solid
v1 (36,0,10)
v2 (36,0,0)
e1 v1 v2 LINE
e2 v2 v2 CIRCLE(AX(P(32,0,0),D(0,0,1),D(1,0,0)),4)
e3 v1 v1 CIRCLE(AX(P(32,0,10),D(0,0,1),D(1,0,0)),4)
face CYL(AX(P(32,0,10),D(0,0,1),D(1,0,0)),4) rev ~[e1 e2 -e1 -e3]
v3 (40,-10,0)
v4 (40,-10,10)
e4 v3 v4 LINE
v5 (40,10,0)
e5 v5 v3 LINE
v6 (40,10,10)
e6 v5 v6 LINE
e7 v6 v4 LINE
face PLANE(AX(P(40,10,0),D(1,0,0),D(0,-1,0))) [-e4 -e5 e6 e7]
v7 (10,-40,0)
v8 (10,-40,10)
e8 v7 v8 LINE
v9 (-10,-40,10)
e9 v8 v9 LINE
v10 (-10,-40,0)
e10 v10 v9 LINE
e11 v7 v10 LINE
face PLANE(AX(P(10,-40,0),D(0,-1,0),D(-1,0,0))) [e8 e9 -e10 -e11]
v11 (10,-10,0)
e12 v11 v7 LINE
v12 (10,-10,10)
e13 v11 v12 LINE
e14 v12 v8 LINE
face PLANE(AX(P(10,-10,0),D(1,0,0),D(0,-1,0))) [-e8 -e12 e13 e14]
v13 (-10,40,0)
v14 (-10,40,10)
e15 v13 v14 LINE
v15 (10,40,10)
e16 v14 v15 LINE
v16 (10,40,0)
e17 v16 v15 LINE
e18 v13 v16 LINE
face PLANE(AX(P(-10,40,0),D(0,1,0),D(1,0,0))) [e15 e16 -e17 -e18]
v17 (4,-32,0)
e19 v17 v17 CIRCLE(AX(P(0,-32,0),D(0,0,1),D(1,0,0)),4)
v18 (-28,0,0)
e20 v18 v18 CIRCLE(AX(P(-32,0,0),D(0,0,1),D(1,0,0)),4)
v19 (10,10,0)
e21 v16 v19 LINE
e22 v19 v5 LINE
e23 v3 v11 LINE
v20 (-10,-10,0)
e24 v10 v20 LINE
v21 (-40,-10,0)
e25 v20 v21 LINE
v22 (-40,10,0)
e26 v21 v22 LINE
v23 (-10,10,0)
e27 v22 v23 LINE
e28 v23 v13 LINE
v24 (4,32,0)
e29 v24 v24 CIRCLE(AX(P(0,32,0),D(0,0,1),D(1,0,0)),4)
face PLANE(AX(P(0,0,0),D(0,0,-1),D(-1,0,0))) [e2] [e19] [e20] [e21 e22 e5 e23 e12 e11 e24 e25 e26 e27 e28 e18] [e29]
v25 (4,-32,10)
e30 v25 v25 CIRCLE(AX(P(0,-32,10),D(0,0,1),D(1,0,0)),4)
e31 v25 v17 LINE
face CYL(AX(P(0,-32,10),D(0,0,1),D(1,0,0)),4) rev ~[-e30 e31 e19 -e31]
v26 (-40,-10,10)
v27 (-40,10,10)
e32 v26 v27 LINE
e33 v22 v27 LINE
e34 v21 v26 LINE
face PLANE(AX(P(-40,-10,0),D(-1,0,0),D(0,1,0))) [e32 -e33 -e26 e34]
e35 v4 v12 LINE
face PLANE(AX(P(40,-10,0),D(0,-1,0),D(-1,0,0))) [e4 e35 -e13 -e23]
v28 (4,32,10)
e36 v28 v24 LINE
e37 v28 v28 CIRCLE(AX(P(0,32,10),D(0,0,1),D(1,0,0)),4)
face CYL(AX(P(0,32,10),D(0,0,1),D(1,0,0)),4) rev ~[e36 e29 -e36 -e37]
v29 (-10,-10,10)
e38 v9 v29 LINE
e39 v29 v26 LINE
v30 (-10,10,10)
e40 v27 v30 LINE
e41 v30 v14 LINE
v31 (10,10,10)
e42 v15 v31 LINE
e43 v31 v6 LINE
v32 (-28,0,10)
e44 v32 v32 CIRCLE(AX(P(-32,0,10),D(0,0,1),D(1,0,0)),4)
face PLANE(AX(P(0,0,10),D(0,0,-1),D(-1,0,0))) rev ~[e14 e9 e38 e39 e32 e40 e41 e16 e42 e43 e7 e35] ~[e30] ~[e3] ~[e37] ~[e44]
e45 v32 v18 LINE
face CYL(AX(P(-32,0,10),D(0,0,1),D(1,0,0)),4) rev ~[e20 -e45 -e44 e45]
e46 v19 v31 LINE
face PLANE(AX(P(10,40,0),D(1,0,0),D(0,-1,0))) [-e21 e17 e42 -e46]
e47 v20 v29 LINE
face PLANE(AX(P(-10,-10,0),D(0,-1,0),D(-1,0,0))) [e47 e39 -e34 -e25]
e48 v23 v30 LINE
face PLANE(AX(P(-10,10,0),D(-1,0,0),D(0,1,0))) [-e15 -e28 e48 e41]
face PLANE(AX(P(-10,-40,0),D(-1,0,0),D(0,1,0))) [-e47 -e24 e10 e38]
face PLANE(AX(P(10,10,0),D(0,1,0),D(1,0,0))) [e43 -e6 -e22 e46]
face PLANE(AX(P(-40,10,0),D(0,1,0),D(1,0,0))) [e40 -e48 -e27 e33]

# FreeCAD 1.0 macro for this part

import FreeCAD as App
import Part
import Sketcher

V = App.Vector
Q = App.Units.Quantity


def add_polygon(sketch, points):
    """Adds a closed chain of lines whose ends are joined by coincident constraints."""
    first, n = sketch.GeometryCount, len(points)
    for a, b in zip(points, points[1:] + points[:1]):
        sketch.addGeometry(Part.LineSegment(App.Vector(*a, 0), App.Vector(*b, 0)), False)
    for i in range(n):
        sketch.addConstraint(Sketcher.Constraint("Coincident", first + i, 2, first + (i + 1) % n, 1))

doc = App.newDocument("Part")
body = doc.addObject("PartDesign::Body", "Body")

sketch1 = body.newObject("Sketcher::SketchObject", "Sketch")
sketch1.AttachmentSupport = (doc.getObject("XY_Plane"), [""])
sketch1.MapMode = "FlatFace"
add_polygon(sketch1, [(10, 40), (-10, 40), (-10, 10), (-40, 10), (-40, -10), (-10, -10), (-10, -40), (10, -40), (10, -10), (40, -10), (40, 10), (10, 10)])
sketch1.addConstraint([
    Sketcher.Constraint("Horizontal", 0),
    Sketcher.Constraint("Vertical", 1),
    Sketcher.Constraint("Horizontal", 2),
    Sketcher.Constraint("Vertical", 3),
    Sketcher.Constraint("Horizontal", 4),
    Sketcher.Constraint("Vertical", 5),
    Sketcher.Constraint("Horizontal", 6),
    Sketcher.Constraint("Vertical", 7),
    Sketcher.Constraint("Horizontal", 8),
    Sketcher.Constraint("Vertical", 9),
    Sketcher.Constraint("Horizontal", 10),
    Sketcher.Constraint("Vertical", 11),
    Sketcher.Constraint("Symmetric", 0, 2, 6, 2, -1, 1),
    Sketcher.Constraint("Symmetric", 2, 2, 8, 2, -1, 1),
    Sketcher.Constraint("Symmetric", 4, 2, 10, 2, -1, 1),
    Sketcher.Constraint("Symmetric", 4, 2, 7, 2, -2),
    Sketcher.Constraint("Equal", 10, 1),
    Sketcher.Constraint("Equal", 6, 3),
    Sketcher.Constraint("DistanceX", 0, 2, 0, 1, Q("20 mm")),
    Sketcher.Constraint("DistanceX", 2, 2, 2, 1, Q("30 mm")),
])
pad1 = body.newObject("PartDesign::Pad", "Pad")
pad1.Profile = sketch1
pad1.Length = 10

sketch2 = body.newObject("Sketcher::SketchObject", "Sketch001")
sketch2.AttachmentSupport = (doc.getObject("XY_Plane"), [""])
sketch2.MapMode = "FlatFace"
sketch2.AttachmentOffset = App.Placement(V(0, 0, 10), App.Rotation())
sketch2.addGeometry([
    Part.Circle(V(0, 32, 0), V(0, 0, 1), 4),
    Part.Circle(V(-32, 0, 0), V(0, 0, 1), 4),
    Part.Circle(V(0, -32, 0), V(0, 0, 1), 4),
    Part.Circle(V(32, 0, 0), V(0, 0, 1), 4),
], False)
sketch2.addConstraint([
    Sketcher.Constraint("Equal", 0, 1),
    Sketcher.Constraint("Equal", 1, 2),
    Sketcher.Constraint("Equal", 2, 3),
    Sketcher.Constraint("Symmetric", 0, 3, 2, 3, -1, 1),
    Sketcher.Constraint("Symmetric", 1, 3, 3, 3, -1, 1),
    Sketcher.Constraint("PointOnObject", 0, 3, -2),
    Sketcher.Constraint("PointOnObject", 1, 3, -1),
    Sketcher.Constraint("Diameter", 0, Q("8 mm")),
    Sketcher.Constraint("DistanceY", -1, 1, 0, 3, Q("32 mm")),
    Sketcher.Constraint("DistanceX", 1, 3, -1, 1, Q("32 mm")),
])
pocket1 = body.newObject("PartDesign::Pocket", "Pocket")
pocket1.Profile = sketch2
pocket1.Type = "ThroughAll"

doc.recompute()
